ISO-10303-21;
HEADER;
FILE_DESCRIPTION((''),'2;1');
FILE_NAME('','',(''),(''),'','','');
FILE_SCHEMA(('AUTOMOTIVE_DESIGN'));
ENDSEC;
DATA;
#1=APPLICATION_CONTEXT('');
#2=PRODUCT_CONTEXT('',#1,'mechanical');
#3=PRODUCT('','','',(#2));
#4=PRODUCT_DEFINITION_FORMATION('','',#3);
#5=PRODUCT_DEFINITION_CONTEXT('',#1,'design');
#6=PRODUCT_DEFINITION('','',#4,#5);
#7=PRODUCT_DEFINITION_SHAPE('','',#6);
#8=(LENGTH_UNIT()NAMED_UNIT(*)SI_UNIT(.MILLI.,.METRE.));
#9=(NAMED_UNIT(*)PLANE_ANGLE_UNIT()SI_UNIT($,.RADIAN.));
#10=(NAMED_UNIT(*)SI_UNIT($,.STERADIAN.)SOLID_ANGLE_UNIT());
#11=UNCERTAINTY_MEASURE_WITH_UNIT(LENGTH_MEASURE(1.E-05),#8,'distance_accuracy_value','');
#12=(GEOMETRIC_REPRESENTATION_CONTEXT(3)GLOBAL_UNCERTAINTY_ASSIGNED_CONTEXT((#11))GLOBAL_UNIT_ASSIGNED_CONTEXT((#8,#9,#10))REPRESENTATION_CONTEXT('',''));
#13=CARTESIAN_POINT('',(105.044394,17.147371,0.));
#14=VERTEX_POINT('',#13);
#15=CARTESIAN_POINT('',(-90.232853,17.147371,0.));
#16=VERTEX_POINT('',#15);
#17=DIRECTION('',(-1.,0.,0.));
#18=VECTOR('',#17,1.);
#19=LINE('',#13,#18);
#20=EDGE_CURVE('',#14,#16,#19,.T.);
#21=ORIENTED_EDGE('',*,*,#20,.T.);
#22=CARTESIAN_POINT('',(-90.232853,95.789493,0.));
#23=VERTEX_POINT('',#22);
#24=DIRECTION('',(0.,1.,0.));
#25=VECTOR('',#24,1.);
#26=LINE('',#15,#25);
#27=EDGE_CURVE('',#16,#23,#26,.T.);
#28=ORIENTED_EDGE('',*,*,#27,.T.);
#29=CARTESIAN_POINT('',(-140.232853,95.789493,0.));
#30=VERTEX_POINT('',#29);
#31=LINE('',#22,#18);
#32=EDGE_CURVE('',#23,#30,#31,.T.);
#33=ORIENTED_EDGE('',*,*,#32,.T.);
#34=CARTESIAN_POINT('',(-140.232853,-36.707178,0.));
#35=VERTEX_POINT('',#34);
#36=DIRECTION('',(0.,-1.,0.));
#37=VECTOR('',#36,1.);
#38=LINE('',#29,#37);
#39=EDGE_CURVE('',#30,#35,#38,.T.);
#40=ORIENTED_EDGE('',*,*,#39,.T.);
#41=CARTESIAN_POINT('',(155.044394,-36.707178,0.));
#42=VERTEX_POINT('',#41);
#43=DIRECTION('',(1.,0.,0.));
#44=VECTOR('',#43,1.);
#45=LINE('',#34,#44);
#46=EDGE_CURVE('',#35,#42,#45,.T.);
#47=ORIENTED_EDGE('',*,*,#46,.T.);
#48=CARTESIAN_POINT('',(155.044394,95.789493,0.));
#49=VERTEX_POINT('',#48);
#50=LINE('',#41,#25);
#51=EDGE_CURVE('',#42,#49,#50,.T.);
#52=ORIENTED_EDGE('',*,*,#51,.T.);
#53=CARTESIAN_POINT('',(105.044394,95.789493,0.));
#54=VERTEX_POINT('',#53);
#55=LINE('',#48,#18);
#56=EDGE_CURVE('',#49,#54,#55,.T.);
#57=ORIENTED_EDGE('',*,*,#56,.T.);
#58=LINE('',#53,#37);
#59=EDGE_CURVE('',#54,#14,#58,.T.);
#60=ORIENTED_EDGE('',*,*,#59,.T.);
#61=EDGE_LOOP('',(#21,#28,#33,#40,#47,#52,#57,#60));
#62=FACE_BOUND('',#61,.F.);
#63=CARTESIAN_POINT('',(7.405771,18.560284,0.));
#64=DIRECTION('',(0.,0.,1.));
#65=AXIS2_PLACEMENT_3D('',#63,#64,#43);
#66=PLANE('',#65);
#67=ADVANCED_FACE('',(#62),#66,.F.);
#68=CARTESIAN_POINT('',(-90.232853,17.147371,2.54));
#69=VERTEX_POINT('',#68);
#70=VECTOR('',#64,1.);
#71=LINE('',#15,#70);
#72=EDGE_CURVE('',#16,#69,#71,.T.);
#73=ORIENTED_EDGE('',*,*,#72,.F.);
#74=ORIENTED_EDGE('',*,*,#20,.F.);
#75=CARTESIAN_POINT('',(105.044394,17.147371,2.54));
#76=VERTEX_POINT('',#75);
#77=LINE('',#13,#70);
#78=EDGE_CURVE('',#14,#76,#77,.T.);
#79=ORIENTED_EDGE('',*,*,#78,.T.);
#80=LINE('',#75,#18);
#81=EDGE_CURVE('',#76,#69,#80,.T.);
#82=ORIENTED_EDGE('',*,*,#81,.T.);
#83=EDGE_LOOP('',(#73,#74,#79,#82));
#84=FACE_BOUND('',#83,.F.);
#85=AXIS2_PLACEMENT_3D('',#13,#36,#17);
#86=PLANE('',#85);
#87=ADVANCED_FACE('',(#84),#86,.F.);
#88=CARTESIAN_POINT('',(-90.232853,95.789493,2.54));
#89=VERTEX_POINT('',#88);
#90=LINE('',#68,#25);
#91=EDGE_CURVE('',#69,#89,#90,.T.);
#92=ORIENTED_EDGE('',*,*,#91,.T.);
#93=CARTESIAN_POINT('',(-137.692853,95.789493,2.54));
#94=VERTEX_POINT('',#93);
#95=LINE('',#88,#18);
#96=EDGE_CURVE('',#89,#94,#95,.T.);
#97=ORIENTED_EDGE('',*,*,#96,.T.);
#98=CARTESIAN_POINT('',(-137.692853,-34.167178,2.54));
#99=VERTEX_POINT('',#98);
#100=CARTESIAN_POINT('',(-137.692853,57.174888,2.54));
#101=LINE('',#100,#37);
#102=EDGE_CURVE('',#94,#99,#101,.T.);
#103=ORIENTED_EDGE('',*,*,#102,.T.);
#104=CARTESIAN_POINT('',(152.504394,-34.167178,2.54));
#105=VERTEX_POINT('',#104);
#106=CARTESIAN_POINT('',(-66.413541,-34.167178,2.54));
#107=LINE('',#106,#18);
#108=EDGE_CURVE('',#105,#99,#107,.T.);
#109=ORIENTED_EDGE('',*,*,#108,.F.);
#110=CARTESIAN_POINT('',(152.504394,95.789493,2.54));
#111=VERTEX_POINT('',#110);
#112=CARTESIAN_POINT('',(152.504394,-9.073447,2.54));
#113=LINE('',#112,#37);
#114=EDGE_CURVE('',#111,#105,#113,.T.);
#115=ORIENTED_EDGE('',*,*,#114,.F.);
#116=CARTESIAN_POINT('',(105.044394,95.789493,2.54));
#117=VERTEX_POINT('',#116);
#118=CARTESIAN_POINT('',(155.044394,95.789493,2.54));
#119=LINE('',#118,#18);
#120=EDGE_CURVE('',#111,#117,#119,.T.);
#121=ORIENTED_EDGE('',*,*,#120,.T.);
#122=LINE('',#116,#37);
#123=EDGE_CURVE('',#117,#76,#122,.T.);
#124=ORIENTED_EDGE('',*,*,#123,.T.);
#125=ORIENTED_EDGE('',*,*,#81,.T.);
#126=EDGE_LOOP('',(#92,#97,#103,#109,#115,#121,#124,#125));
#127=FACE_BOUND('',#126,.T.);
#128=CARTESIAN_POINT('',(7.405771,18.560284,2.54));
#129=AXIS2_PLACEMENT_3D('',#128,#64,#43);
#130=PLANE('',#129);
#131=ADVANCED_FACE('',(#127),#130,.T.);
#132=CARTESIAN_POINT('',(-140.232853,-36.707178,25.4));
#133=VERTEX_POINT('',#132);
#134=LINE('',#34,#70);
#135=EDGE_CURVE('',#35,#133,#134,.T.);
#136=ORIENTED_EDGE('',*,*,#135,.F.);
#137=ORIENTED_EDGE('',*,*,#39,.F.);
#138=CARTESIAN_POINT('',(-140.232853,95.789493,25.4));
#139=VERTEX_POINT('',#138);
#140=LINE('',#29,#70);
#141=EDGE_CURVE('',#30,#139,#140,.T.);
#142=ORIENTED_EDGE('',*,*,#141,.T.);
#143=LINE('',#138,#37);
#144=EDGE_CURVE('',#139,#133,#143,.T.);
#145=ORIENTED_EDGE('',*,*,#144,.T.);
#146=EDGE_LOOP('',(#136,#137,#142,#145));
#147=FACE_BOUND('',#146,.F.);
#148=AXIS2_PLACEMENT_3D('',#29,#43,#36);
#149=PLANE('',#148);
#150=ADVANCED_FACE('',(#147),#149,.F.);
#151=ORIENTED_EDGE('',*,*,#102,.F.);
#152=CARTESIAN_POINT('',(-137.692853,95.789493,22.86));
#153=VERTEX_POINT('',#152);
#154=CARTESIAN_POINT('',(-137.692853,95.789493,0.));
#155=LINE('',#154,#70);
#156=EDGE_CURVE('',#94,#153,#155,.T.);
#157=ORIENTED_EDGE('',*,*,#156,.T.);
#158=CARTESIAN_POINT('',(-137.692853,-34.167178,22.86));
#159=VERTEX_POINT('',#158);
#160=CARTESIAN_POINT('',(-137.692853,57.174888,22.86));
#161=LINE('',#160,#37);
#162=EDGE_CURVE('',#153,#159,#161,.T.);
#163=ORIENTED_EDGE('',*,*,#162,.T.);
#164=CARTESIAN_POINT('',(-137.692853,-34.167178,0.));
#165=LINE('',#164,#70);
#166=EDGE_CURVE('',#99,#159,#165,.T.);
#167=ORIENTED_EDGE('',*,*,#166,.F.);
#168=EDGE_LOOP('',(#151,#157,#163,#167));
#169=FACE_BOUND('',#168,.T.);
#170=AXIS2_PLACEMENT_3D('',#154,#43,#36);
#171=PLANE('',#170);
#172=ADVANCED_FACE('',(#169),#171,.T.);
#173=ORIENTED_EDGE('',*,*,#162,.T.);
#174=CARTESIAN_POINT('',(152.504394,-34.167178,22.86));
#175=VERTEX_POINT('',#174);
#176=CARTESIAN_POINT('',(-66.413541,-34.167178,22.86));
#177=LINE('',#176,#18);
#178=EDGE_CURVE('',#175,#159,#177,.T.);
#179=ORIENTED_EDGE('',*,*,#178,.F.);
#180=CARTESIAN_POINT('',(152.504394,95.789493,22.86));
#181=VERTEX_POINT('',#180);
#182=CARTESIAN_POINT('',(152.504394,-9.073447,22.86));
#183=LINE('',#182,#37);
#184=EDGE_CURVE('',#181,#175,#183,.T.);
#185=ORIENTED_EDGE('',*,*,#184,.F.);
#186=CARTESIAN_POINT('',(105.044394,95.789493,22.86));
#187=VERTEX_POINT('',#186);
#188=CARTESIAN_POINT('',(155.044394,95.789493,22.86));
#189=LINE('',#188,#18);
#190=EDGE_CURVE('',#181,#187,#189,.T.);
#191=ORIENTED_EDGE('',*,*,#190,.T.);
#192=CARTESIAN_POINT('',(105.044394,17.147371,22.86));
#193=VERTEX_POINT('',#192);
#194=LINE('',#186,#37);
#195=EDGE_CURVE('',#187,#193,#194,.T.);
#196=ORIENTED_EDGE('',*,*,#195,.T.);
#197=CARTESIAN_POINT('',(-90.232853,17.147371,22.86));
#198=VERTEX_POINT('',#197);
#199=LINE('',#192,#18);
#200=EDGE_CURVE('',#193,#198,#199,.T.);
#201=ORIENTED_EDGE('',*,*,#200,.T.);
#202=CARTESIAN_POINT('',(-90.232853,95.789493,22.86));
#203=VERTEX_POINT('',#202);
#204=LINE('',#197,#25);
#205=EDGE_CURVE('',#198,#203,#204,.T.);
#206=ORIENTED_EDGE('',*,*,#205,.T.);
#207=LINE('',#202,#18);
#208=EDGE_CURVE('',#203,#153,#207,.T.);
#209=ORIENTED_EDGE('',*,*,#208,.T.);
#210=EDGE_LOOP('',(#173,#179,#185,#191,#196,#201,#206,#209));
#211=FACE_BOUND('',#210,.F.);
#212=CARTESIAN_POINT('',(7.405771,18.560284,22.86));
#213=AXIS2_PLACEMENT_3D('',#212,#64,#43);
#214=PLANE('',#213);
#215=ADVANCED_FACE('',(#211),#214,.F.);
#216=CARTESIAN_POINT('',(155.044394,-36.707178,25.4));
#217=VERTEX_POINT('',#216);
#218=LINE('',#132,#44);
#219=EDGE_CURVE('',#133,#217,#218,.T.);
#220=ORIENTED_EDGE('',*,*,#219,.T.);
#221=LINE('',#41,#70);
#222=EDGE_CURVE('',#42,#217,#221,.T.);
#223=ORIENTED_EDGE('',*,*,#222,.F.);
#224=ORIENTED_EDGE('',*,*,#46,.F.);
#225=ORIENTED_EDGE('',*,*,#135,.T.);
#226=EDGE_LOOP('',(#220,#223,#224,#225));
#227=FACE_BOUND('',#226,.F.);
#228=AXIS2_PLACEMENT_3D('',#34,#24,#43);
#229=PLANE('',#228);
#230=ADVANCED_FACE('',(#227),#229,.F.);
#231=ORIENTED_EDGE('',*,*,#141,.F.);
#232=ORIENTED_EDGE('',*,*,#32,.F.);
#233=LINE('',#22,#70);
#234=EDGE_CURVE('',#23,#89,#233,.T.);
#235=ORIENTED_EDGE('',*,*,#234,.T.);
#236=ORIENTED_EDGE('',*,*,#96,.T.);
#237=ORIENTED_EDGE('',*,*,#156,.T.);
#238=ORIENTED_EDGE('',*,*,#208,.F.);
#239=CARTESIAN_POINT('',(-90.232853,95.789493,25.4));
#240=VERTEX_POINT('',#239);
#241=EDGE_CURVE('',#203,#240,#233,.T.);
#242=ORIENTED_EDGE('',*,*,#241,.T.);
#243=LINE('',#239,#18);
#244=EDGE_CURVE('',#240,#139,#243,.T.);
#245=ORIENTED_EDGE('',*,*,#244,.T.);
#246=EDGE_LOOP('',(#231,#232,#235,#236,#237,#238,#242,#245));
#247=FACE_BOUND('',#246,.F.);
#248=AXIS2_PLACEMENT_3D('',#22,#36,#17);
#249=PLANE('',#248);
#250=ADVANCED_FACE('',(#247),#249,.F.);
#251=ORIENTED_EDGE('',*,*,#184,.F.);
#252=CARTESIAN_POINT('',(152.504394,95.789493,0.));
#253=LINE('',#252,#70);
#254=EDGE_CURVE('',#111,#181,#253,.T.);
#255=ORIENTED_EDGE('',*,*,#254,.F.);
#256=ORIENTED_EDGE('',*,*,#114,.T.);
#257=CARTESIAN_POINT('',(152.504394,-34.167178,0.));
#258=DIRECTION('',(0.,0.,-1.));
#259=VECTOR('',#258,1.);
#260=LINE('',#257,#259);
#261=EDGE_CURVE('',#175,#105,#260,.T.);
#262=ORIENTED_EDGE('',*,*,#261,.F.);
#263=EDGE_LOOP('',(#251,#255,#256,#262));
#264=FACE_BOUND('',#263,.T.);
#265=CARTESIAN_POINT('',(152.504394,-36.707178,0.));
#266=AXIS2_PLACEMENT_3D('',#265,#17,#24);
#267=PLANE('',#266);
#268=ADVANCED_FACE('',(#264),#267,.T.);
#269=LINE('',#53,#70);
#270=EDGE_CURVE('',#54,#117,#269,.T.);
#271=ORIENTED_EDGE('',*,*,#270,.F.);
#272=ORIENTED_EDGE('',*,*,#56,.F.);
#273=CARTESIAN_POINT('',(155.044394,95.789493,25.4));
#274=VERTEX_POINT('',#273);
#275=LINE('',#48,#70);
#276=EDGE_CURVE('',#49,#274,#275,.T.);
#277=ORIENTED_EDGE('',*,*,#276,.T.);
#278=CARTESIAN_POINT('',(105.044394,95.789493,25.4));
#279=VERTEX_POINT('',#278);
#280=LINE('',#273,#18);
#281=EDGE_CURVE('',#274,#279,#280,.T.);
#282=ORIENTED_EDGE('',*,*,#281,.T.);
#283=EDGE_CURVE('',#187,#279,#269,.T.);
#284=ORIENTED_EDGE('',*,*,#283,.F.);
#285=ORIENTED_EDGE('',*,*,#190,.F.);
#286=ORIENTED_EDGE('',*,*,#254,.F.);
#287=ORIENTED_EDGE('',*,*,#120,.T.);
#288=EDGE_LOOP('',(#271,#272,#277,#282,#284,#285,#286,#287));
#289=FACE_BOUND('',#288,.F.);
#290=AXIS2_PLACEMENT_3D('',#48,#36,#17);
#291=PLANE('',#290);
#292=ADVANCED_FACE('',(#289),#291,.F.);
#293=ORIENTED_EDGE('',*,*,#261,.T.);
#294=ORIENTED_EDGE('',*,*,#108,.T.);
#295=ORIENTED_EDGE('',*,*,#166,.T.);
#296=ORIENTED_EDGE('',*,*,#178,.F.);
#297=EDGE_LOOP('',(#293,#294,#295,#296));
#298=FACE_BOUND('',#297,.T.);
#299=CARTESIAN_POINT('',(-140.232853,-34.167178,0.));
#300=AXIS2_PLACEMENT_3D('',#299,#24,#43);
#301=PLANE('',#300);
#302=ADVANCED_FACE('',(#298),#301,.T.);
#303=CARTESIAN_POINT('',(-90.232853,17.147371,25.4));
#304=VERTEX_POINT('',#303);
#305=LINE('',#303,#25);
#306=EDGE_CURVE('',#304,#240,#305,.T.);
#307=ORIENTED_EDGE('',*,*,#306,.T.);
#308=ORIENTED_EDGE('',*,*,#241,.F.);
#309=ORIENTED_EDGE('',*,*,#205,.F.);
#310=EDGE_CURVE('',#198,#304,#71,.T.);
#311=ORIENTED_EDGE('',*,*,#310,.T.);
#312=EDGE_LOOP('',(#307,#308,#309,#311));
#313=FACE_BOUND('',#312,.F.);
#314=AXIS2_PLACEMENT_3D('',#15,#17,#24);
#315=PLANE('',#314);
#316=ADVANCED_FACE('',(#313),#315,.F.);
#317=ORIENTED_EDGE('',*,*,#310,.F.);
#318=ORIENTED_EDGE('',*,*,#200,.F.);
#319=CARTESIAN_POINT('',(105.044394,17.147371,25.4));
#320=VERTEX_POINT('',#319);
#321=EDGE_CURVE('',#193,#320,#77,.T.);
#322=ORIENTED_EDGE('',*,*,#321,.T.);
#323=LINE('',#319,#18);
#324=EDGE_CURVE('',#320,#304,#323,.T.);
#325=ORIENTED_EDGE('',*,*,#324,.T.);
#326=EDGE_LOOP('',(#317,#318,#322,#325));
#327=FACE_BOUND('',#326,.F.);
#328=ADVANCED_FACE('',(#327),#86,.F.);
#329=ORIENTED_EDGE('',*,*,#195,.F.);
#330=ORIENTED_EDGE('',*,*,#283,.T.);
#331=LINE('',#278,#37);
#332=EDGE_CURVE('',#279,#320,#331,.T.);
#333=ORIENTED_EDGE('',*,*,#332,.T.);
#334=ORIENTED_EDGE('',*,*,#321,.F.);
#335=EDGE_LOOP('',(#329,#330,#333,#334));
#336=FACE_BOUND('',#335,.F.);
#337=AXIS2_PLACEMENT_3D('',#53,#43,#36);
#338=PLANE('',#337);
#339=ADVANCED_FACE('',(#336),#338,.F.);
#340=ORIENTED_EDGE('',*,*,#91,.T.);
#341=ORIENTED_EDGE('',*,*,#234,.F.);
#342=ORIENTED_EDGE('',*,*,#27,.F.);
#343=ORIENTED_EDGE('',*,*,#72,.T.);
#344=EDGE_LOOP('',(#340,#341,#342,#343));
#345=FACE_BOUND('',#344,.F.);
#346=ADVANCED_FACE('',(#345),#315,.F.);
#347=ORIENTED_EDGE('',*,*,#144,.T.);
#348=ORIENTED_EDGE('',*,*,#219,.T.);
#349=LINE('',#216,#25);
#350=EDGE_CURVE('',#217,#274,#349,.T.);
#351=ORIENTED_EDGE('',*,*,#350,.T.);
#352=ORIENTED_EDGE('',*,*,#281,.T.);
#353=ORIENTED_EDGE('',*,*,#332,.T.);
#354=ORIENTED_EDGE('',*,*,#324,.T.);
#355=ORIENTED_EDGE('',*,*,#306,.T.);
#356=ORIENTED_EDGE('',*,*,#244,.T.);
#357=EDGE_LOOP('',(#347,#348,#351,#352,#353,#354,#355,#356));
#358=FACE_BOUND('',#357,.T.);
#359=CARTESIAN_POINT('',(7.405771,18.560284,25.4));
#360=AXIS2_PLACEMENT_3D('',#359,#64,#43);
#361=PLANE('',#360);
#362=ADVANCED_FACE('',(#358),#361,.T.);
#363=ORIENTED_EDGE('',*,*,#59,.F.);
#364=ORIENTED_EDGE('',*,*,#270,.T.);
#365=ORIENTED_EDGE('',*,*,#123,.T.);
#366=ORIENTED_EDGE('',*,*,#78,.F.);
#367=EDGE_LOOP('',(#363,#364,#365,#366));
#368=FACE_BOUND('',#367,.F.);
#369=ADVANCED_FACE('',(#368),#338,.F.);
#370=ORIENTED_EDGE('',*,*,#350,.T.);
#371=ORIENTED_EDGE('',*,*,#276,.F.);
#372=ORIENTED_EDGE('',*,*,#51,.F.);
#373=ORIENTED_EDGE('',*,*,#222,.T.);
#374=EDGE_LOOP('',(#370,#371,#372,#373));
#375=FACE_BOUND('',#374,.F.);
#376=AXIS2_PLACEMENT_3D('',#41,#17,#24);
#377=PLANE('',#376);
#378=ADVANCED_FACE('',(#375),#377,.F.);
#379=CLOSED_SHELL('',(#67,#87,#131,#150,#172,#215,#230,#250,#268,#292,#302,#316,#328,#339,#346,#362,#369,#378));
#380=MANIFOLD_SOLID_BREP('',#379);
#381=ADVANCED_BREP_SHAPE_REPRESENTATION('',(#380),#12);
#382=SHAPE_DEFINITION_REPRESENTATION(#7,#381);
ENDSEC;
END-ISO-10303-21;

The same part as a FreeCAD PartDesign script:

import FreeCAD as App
import Part
import Sketcher
from FreeCAD import Vector
Q = App.Units.Quantity


def faces_at(feature, points):
    """Names of the faces that lie closest to the given points."""
    faces = feature.Shape.Faces
    near = lambda p: min(range(len(faces)), key=lambda i: faces[i].distToShape(Part.Vertex(*p))[0])
    return sorted({f"Face{near(p) + 1}" for p in points})


def add_polygon(sketch, points):
    """Adds a closed chain of lines whose ends are joined by coincident constraints."""
    first, n = sketch.GeometryCount, len(points)
    for a, b in zip(points, points[1:] + points[:1]):
        sketch.addGeometry(Part.LineSegment(App.Vector(*a, 0), App.Vector(*b, 0)), False)
    for i in range(n):
        sketch.addConstraint(Sketcher.Constraint("Coincident", first + i, 2, first + (i + 1) % n, 1))

doc = App.newDocument("Part")
body = doc.addObject("PartDesign::Body", "Body")

sketch1 = body.newObject("Sketcher::SketchObject", "Sketch")
sketch1.AttachmentSupport = (doc.getObject("XY_Plane"), [""])
sketch1.MapMode = "FlatFace"
add_polygon(sketch1, [(-90, 96), (-140, 96), (-140, -37), (155, -37), (155, 96), (105, 96), (105, 17), (-90, 17)])
sketch1.addConstraint(Sketcher.Constraint("Horizontal", 0))
sketch1.addConstraint(Sketcher.Constraint("Vertical", 1))
sketch1.addConstraint(Sketcher.Constraint("Horizontal", 2))
sketch1.addConstraint(Sketcher.Constraint("Vertical", 3))
sketch1.addConstraint(Sketcher.Constraint("Horizontal", 4))
sketch1.addConstraint(Sketcher.Constraint("Vertical", 5))
sketch1.addConstraint(Sketcher.Constraint("Horizontal", 6))
sketch1.addConstraint(Sketcher.Constraint("Vertical", 7))
sketch1.addConstraint(Sketcher.Constraint("Horizontal", 0, 2, 3, 2))
sketch1.addConstraint(Sketcher.Constraint("Equal", 0, 4))
sketch1.addConstraint(Sketcher.Constraint("DistanceX", 0, 2, 0, 1, 50.0))
sketch1.addConstraint(Sketcher.Constraint("DistanceY", 1, 2, 1, 1, 132.496671))
sketch1.addConstraint(Sketcher.Constraint("DistanceY", 5, 2, 5, 1, 78.642122))
sketch1.addConstraint(Sketcher.Constraint("DistanceX", 2, 1, 2, 2, 295.277247))
sketch1.addConstraint(Sketcher.Constraint("DistanceY", -1, 1, 5, 2, 17.147371))
sketch1.addConstraint(Sketcher.Constraint("DistanceX", 0, 2, -1, 1, 140.232853))
pad1 = body.newObject("PartDesign::Pad", "Pad")
pad1.Profile = sketch1
pad1.Length = Q("1 in")
doc.recompute()

thickness = body.newObject("PartDesign::Thickness", "Thickness")
thickness.Base = (pad1, faces_at(pad1, [
    (-115.233, 95.789, 12.7),
    (7.406, 17.147, 12.7),
    (-90.233, 56.468, 12.7),
    (105.044, 56.468, 12.7),
    (130.044, 95.789, 12.7),
]))
thickness.Value = Q("0.1 in")
thickness.Reversed = True
thickness.Join = "Arc"

doc.recompute()
